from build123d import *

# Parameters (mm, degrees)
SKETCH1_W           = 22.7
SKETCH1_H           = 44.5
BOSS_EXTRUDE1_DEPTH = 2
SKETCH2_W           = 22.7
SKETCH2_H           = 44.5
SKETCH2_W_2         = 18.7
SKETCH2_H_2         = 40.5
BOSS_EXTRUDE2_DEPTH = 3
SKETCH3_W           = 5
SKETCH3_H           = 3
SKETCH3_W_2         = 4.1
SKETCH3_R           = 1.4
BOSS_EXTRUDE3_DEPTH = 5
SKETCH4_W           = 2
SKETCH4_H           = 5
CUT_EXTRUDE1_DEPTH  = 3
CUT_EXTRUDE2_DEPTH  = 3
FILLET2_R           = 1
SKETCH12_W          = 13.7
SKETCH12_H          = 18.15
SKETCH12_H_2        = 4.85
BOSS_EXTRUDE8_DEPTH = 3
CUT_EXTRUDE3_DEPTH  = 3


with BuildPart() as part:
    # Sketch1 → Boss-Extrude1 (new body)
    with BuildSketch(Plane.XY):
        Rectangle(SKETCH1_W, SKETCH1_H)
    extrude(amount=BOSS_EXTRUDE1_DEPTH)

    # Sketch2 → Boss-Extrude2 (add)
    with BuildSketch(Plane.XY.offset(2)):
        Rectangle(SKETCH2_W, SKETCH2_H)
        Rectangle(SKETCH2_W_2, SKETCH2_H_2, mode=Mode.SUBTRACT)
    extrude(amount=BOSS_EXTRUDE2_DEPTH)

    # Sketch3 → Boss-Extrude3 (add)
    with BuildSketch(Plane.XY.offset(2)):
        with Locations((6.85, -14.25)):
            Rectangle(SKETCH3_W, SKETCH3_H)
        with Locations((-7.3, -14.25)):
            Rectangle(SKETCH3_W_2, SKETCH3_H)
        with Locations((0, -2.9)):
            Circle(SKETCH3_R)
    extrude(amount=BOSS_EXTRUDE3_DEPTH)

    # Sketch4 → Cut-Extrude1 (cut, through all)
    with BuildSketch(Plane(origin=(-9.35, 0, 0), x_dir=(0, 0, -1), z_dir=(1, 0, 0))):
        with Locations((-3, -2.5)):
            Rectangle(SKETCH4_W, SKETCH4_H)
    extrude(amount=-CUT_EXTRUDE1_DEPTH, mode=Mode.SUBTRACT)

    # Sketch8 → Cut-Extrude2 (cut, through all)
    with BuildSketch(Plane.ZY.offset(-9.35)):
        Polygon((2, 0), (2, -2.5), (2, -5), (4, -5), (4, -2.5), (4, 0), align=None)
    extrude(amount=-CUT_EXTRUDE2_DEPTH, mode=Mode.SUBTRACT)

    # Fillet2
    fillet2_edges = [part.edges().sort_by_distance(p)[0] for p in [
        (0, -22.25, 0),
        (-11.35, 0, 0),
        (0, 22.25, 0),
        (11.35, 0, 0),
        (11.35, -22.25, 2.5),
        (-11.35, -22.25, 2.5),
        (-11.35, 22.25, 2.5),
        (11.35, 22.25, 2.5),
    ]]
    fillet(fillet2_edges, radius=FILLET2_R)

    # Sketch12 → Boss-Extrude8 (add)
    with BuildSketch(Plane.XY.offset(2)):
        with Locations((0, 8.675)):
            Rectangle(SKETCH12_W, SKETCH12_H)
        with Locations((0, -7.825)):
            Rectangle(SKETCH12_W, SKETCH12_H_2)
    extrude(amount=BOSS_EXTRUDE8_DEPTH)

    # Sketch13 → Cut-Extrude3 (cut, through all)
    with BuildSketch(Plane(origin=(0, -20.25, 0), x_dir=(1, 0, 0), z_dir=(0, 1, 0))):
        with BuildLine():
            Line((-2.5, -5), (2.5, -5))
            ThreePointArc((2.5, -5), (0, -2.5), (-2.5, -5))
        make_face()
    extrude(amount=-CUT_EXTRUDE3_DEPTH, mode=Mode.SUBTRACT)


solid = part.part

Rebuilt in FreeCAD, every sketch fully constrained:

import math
import FreeCAD as App
import Part
import Sketcher
Q = App.Units.Quantity


def edges_at(feature, points):
    """Names of the edges that pass closest to the given points."""
    edges = feature.Shape.Edges
    near = lambda p: min(range(len(edges)), key=lambda i: edges[i].distToShape(Part.Vertex(*p))[0])
    return sorted({f"Edge{near(p) + 1}" for p in points})

doc = App.newDocument("Part")
params = doc.addObject("Spreadsheet::Sheet", "Params")
for row, (alias, value) in enumerate([
    ("sketch1_width", "22.7 mm"),
    ("sketch1_height", "44.5 mm"),
    ("pad1_length", "2 mm"),
    ("sketch2_width", "22.7 mm"),
    ("sketch2_width2", "18.7 mm"),
    ("sketch2_height", "44.5 mm"),
    ("sketch2_height2", "40.5 mm"),
    ("pad2_length", "3 mm"),
    ("sketch3_diameter", "2.8 mm"),
    ("sketch3_width", "5 mm"),
    ("sketch3_height", "3 mm"),
    ("sketch3_width2", "4.1 mm"),
    ("pad3_length", "5 mm"),
    ("sketch4_width", "5 mm"),
    ("sketch4_height", "2 mm"),
    ("sketch5_width", "5 mm"),
    ("sketch5_height", "2 mm"),
    ("fillet_radius", "1 mm"),
    ("sketch6_width", "13.7 mm"),
    ("sketch6_height", "18.15 mm"),
    ("pad4_length", "3 mm"),
    ("sketch7_radius", "2.5 mm"),
], start=1):
    params.set(f"A{row}", alias)
    params.set(f"B{row}", "=" + value)
    params.setAlias(f"B{row}", alias)

body = doc.addObject("PartDesign::Body", "Body")

# Sketch on XY plane
sketch1 = body.newObject("Sketcher::SketchObject", "Sketch")
sketch1.AttachmentSupport = (doc.getObject("XY_Plane"), [""])
sketch1.MapMode = "FlatFace"
sketch1.addGeometry([
    Part.LineSegment(App.Vector(-11, 22, 0), App.Vector(-11, -22, 0)),
    Part.LineSegment(App.Vector(-11, -22, 0), App.Vector(11, -22, 0)),
    Part.LineSegment(App.Vector(11, -22, 0), App.Vector(11, 22, 0)),
    Part.LineSegment(App.Vector(11, 22, 0), App.Vector(-11, 22, 0)),
], False)
sketch1.addConstraint([
    Sketcher.Constraint("Coincident", 0, 2, 1, 1),
    Sketcher.Constraint("Coincident", 1, 2, 2, 1),
    Sketcher.Constraint("Coincident", 2, 2, 3, 1),
    Sketcher.Constraint("Coincident", 3, 2, 0, 1),
    Sketcher.Constraint("Vertical", 0),
    Sketcher.Constraint("Horizontal", 1),
    Sketcher.Constraint("Vertical", 2),
    Sketcher.Constraint("Horizontal", 3),
    Sketcher.Constraint("Symmetric", 0, 2, 2, 2, -1, 1),
    Sketcher.Constraint("DistanceX", 1, 1, 1, 2, Q("22.7 mm")),
    Sketcher.Constraint("DistanceY", 0, 2, 0, 1, Q("44.5 mm")),
])
sketch1.setExpression("Constraints[9]", "Params.sketch1_width")
sketch1.setExpression("Constraints[10]", "Params.sketch1_height")
pad1 = body.newObject("PartDesign::Pad", "Pad")
pad1.Profile = sketch1
pad1.setExpression("Length", "Params.pad1_length")

# Sketch on XY plane
sketch2 = body.newObject("Sketcher::SketchObject", "Sketch001")
sketch2.AttachmentSupport = (doc.getObject("XY_Plane"), [""])
sketch2.MapMode = "FlatFace"
sketch2.AttachmentOffset = App.Placement(App.Vector(0, 0, 2), App.Rotation())
sketch2.addGeometry([
    Part.LineSegment(App.Vector(-11, 22, 0), App.Vector(-11, -22, 0)),  # 0
    Part.LineSegment(App.Vector(-11, -22, 0), App.Vector(11, -22, 0)),  # 1
    Part.LineSegment(App.Vector(11, -22, 0), App.Vector(11, 22, 0)),  # 2
    Part.LineSegment(App.Vector(11, 22, 0), App.Vector(-11, 22, 0)),  # 3
    Part.LineSegment(App.Vector(9, -20, 0), App.Vector(-9, -20, 0)),  # 4
    Part.LineSegment(App.Vector(-9, -20, 0), App.Vector(-9, 20, 0)),  # 5
    Part.LineSegment(App.Vector(-9, 20, 0), App.Vector(9, 20, 0)),  # 6
    Part.LineSegment(App.Vector(9, 20, 0), App.Vector(9, -20, 0)),  # 7
], False)
sketch2.addConstraint([
    Sketcher.Constraint("Coincident", 0, 2, 1, 1),
    Sketcher.Constraint("Coincident", 1, 2, 2, 1),
    Sketcher.Constraint("Coincident", 2, 2, 3, 1),
    Sketcher.Constraint("Coincident", 3, 2, 0, 1),
    Sketcher.Constraint("Coincident", 4, 2, 5, 1),
    Sketcher.Constraint("Coincident", 5, 2, 6, 1),
    Sketcher.Constraint("Coincident", 6, 2, 7, 1),
    Sketcher.Constraint("Coincident", 7, 2, 4, 1),
    Sketcher.Constraint("Vertical", 0),
    Sketcher.Constraint("Horizontal", 1),
    Sketcher.Constraint("Vertical", 2),
    Sketcher.Constraint("Horizontal", 3),
    Sketcher.Constraint("Horizontal", 4),
    Sketcher.Constraint("Vertical", 5),
    Sketcher.Constraint("Horizontal", 6),
    Sketcher.Constraint("Vertical", 7),
    Sketcher.Constraint("Symmetric", 0, 2, 2, 2, -1, 1),
    Sketcher.Constraint("Symmetric", 4, 2, 6, 2, -1, 1),
    Sketcher.Constraint("DistanceX", 1, 1, 1, 2, Q("22.7 mm")),
    Sketcher.Constraint("DistanceX", 4, 2, 4, 1, Q("18.7 mm")),
    Sketcher.Constraint("DistanceY", 0, 2, 0, 1, Q("44.5 mm")),
    Sketcher.Constraint("DistanceY", 5, 1, 5, 2, Q("40.5 mm")),
])
sketch2.setExpression("Constraints[18]", "Params.sketch2_width")
sketch2.setExpression("Constraints[19]", "Params.sketch2_width2")
sketch2.setExpression("Constraints[20]", "Params.sketch2_height")
sketch2.setExpression("Constraints[21]", "Params.sketch2_height2")
pad2 = body.newObject("PartDesign::Pad", "Pad001")
pad2.Profile = sketch2
pad2.setExpression("Length", "Params.pad2_length")

# Sketch on XY plane
sketch3 = body.newObject("Sketcher::SketchObject", "Sketch002")
sketch3.AttachmentSupport = (doc.getObject("XY_Plane"), [""])
sketch3.MapMode = "FlatFace"
sketch3.AttachmentOffset = App.Placement(App.Vector(0, 0, 2), App.Rotation())
sketch3.addGeometry([
    Part.LineSegment(App.Vector(4.3, -12.8, 0), App.Vector(4.3, -15.8, 0)),  # 0
    Part.LineSegment(App.Vector(4.3, -15.8, 0), App.Vector(9.3, -15.8, 0)),  # 1
    Part.LineSegment(App.Vector(9.3, -15.8, 0), App.Vector(9.3, -12.8, 0)),  # 2
    Part.LineSegment(App.Vector(9.3, -12.8, 0), App.Vector(4.3, -12.8, 0)),  # 3
    Part.LineSegment(App.Vector(-9.3, -12.8, 0), App.Vector(-9.3, -15.8, 0)),  # 4
    Part.LineSegment(App.Vector(-9.3, -15.8, 0), App.Vector(-5.2, -15.8, 0)),  # 5
    Part.LineSegment(App.Vector(-5.2, -15.8, 0), App.Vector(-5.2, -12.8, 0)),  # 6
    Part.LineSegment(App.Vector(-5.2, -12.8, 0), App.Vector(-9.3, -12.8, 0)),  # 7
    Part.Circle(App.Vector(0, -2.9, 0), App.Vector(0, 0, 1), 1.4),  # 8
], False)
sketch3.addConstraint([
    Sketcher.Constraint("Coincident", 0, 2, 1, 1),
    Sketcher.Constraint("Coincident", 1, 2, 2, 1),
    Sketcher.Constraint("Coincident", 2, 2, 3, 1),
    Sketcher.Constraint("Coincident", 3, 2, 0, 1),
    Sketcher.Constraint("Coincident", 4, 2, 5, 1),
    Sketcher.Constraint("Coincident", 5, 2, 6, 1),
    Sketcher.Constraint("Coincident", 6, 2, 7, 1),
    Sketcher.Constraint("Coincident", 7, 2, 4, 1),
    Sketcher.Constraint("Vertical", 0),
    Sketcher.Constraint("Horizontal", 1),
    Sketcher.Constraint("Vertical", 2),
    Sketcher.Constraint("Horizontal", 3),
    Sketcher.Constraint("Vertical", 4),
    Sketcher.Constraint("Horizontal", 5),
    Sketcher.Constraint("Vertical", 6),
    Sketcher.Constraint("Horizontal", 7),
    Sketcher.Constraint("Symmetric", 1, 2, 4, 2, -2),
    Sketcher.Constraint("PointOnObject", 8, 3, -2),
    Sketcher.Constraint("Horizontal", 3, 2, 6, 2),
    Sketcher.Constraint("Diameter", 8, Q("2.8 mm")),
    Sketcher.Constraint("DistanceX", 1, 1, 1, 2, Q("5 mm")),
    Sketcher.Constraint("DistanceY", 0, 2, 0, 1, Q("3 mm")),
    Sketcher.Constraint("DistanceX", 5, 1, 5, 2, Q("4.1 mm")),
    Sketcher.Constraint("DistanceY", 8, 3, -1, 1, Q("2.9 mm")),
    Sketcher.Constraint("DistanceX", 4, 2, 0, 2, Q("13.7 mm")),
    Sketcher.Constraint("DistanceY", 0, 2, -1, 1, Q("15.75 mm")),
])
sketch3.setExpression("Constraints[19]", "Params.sketch3_diameter")
sketch3.setExpression("Constraints[20]", "Params.sketch3_width")
sketch3.setExpression("Constraints[21]", "Params.sketch3_height")
sketch3.setExpression("Constraints[22]", "Params.sketch3_width2")
pad3 = body.newObject("PartDesign::Pad", "Pad002")
pad3.Profile = sketch3
pad3.setExpression("Length", "Params.pad3_length")

# Sketch on YZ plane
sketch4 = body.newObject("Sketcher::SketchObject", "Sketch003")
sketch4.AttachmentSupport = (doc.getObject("YZ_Plane"), [""])
sketch4.MapMode = "FlatFace"
sketch4.AttachmentOffset = App.Placement(App.Vector(0, 0, -9.35), App.Rotation())
sketch4.addGeometry([
    Part.LineSegment(App.Vector(0, 4, 0), App.Vector(-5, 4, 0)),
    Part.LineSegment(App.Vector(-5, 4, 0), App.Vector(-5, 2, 0)),
    Part.LineSegment(App.Vector(-5, 2, 0), App.Vector(0, 2, 0)),
    Part.LineSegment(App.Vector(0, 2, 0), App.Vector(0, 4, 0)),
], False)
sketch4.addConstraint([
    Sketcher.Constraint("Coincident", 0, 2, 1, 1),
    Sketcher.Constraint("Coincident", 1, 2, 2, 1),
    Sketcher.Constraint("Coincident", 2, 2, 3, 1),
    Sketcher.Constraint("Coincident", 3, 2, 0, 1),
    Sketcher.Constraint("Horizontal", 0),
    Sketcher.Constraint("Vertical", 1),
    Sketcher.Constraint("Horizontal", 2),
    Sketcher.Constraint("Vertical", 3),
    Sketcher.Constraint("PointOnObject", 2, 2, -2),
    Sketcher.Constraint("DistanceX", 0, 2, 0, 1, Q("5 mm")),
    Sketcher.Constraint("DistanceY", 1, 2, 1, 1, Q("2 mm")),
    Sketcher.Constraint("DistanceY", -1, 1, 0, 2, Q("4 mm")),
])
sketch4.setExpression("Constraints[9]", "Params.sketch4_width")
sketch4.setExpression("Constraints[10]", "Params.sketch4_height")
pocket1 = body.newObject("PartDesign::Pocket", "Pocket")
pocket1.Profile = sketch4
pocket1.Type = "ThroughAll"

# Sketch on YZ plane
sketch5 = body.newObject("Sketcher::SketchObject", "Sketch004")
sketch5.AttachmentSupport = (doc.getObject("YZ_Plane"), [""])
sketch5.MapMode = "FlatFace"
sketch5.AttachmentOffset = App.Placement(App.Vector(0, 0, 9.35), App.Rotation())
sketch5.addGeometry([
    Part.LineSegment(App.Vector(0, 2, 0), App.Vector(-5, 2, 0)),
    Part.LineSegment(App.Vector(-5, 2, 0), App.Vector(-5, 4, 0)),
    Part.LineSegment(App.Vector(-5, 4, 0), App.Vector(0, 4, 0)),
    Part.LineSegment(App.Vector(0, 4, 0), App.Vector(0, 2, 0)),
], False)
sketch5.addConstraint([
    Sketcher.Constraint("Coincident", 0, 2, 1, 1),
    Sketcher.Constraint("Coincident", 1, 2, 2, 1),
    Sketcher.Constraint("Coincident", 2, 2, 3, 1),
    Sketcher.Constraint("Coincident", 3, 2, 0, 1),
    Sketcher.Constraint("Horizontal", 0),
    Sketcher.Constraint("Vertical", 1),
    Sketcher.Constraint("Horizontal", 2),
    Sketcher.Constraint("Vertical", 3),
    Sketcher.Constraint("PointOnObject", 2, 2, -2),
    Sketcher.Constraint("DistanceX", 0, 2, 0, 1, Q("5 mm")),
    Sketcher.Constraint("DistanceY", 1, 1, 1, 2, Q("2 mm")),
    Sketcher.Constraint("DistanceY", -1, 1, 0, 2, Q("2 mm")),
])
sketch5.setExpression("Constraints[9]", "Params.sketch5_width")
sketch5.setExpression("Constraints[10]", "Params.sketch5_height")
pocket2 = body.newObject("PartDesign::Pocket", "Pocket001")
pocket2.Profile = sketch5
pocket2.Type = "ThroughAll"
pocket2.Reversed = True
doc.recompute()

fillet = body.newObject("PartDesign::Fillet", "Fillet")
fillet.Base = (pocket2, edges_at(pocket2, [
    (0, -22.25, 0),
    (-11.35, 0, 0),
    (0, 22.25, 0),
    (11.35, 0, 0),
    (11.35, -22.25, 2.5),
    (-11.35, -22.25, 2.5),
    (-11.35, 22.25, 2.5),
    (11.35, 22.25, 2.5),
]))
fillet.setExpression("Radius", "Params.fillet_radius")

# Sketch on XY plane
sketch6 = body.newObject("Sketcher::SketchObject", "Sketch005")
sketch6.AttachmentSupport = (doc.getObject("XY_Plane"), [""])
sketch6.MapMode = "FlatFace"
sketch6.AttachmentOffset = App.Placement(App.Vector(0, 0, 2), App.Rotation())
sketch6.addGeometry([
    Part.LineSegment(App.Vector(-6.8, 17.8, 0), App.Vector(-6.8, -0.4, 0)),  # 0
    Part.LineSegment(App.Vector(-6.8, -0.4, 0), App.Vector(6.8, -0.4, 0)),  # 1
    Part.LineSegment(App.Vector(6.8, -0.4, 0), App.Vector(6.8, 17.8, 0)),  # 2
    Part.LineSegment(App.Vector(6.8, 17.8, 0), App.Vector(-6.8, 17.8, 0)),  # 3
    Part.LineSegment(App.Vector(-6.8, -5.4, 0), App.Vector(-6.8, -10.2, 0)),  # 4
    Part.LineSegment(App.Vector(-6.8, -10.2, 0), App.Vector(6.8, -10.2, 0)),  # 5
    Part.LineSegment(App.Vector(6.8, -10.2, 0), App.Vector(6.8, -5.4, 0)),  # 6
    Part.LineSegment(App.Vector(6.8, -5.4, 0), App.Vector(-6.8, -5.4, 0)),  # 7
], False)
sketch6.addConstraint([
    Sketcher.Constraint("Coincident", 0, 2, 1, 1),
    Sketcher.Constraint("Coincident", 1, 2, 2, 1),
    Sketcher.Constraint("Coincident", 2, 2, 3, 1),
    Sketcher.Constraint("Coincident", 3, 2, 0, 1),
    Sketcher.Constraint("Coincident", 4, 2, 5, 1),
    Sketcher.Constraint("Coincident", 5, 2, 6, 1),
    Sketcher.Constraint("Coincident", 6, 2, 7, 1),
    Sketcher.Constraint("Coincident", 7, 2, 4, 1),
    Sketcher.Constraint("Vertical", 0),
    Sketcher.Constraint("Horizontal", 1),
    Sketcher.Constraint("Vertical", 2),
    Sketcher.Constraint("Horizontal", 3),
    Sketcher.Constraint("Vertical", 4),
    Sketcher.Constraint("Horizontal", 5),
    Sketcher.Constraint("Vertical", 6),
    Sketcher.Constraint("Horizontal", 7),
    Sketcher.Constraint("Vertical", 3, 2, 4, 2),
    Sketcher.Constraint("Vertical", 2, 2, 5, 2),
    Sketcher.Constraint("DistanceX", 1, 1, 1, 2, Q("13.7 mm")),
    Sketcher.Constraint("DistanceY", 4, 2, 3, 2, Q("28 mm")),
    Sketcher.Constraint("DistanceY", 6, 2, 1, 2, Q("5 mm")),
    Sketcher.Constraint("DistanceY", 0, 2, 0, 1, Q("18.15 mm")),
    Sketcher.Constraint("DistanceY", 0, 2, -1, 1, Q("0.4 mm")),
    Sketcher.Constraint("DistanceX", 0, 2, -1, 1, Q("6.85 mm")),
])
sketch6.setExpression("Constraints[18]", "Params.sketch6_width")
sketch6.setExpression("Constraints[21]", "Params.sketch6_height")
pad4 = body.newObject("PartDesign::Pad", "Pad003")
pad4.Profile = sketch6
pad4.setExpression("Length", "Params.pad4_length")

# Sketch on XZ plane
sketch7 = body.newObject("Sketcher::SketchObject", "Sketch006")
sketch7.AttachmentSupport = (doc.getObject("XZ_Plane"), [""])
sketch7.MapMode = "FlatFace"
sketch7.AttachmentOffset = App.Placement(App.Vector(0, 0, 20.25), App.Rotation())
sketch7.addGeometry([
    Part.LineSegment(App.Vector(-2.5, 5, 0), App.Vector(2.5, 5, 0)),
    Part.ArcOfCircle(Part.Circle(App.Vector(0, 5, 0), App.Vector(0, 0, 1), 2.5), math.radians(180), math.radians(360)),
], False)
sketch7.addConstraint([
    Sketcher.Constraint("Coincident", 0, 1, 1, 1),
    Sketcher.Constraint("Coincident", 1, 2, 0, 2),
    Sketcher.Constraint("Horizontal", 0),
    Sketcher.Constraint("PointOnObject", 1, 3, -2),
    Sketcher.Constraint("Horizontal", 1, 3, 0, 1),
    Sketcher.Constraint("Radius", 1, Q("2.5 mm")),
    Sketcher.Constraint("DistanceY", -1, 1, 1, 3, Q("5 mm")),
])
sketch7.setExpression("Constraints[5]", "Params.sketch7_radius")
pocket3 = body.newObject("PartDesign::Pocket", "Pocket002")
pocket3.Profile = sketch7
pocket3.Type = "ThroughAll"
pocket3.Reversed = True

doc.recompute()
